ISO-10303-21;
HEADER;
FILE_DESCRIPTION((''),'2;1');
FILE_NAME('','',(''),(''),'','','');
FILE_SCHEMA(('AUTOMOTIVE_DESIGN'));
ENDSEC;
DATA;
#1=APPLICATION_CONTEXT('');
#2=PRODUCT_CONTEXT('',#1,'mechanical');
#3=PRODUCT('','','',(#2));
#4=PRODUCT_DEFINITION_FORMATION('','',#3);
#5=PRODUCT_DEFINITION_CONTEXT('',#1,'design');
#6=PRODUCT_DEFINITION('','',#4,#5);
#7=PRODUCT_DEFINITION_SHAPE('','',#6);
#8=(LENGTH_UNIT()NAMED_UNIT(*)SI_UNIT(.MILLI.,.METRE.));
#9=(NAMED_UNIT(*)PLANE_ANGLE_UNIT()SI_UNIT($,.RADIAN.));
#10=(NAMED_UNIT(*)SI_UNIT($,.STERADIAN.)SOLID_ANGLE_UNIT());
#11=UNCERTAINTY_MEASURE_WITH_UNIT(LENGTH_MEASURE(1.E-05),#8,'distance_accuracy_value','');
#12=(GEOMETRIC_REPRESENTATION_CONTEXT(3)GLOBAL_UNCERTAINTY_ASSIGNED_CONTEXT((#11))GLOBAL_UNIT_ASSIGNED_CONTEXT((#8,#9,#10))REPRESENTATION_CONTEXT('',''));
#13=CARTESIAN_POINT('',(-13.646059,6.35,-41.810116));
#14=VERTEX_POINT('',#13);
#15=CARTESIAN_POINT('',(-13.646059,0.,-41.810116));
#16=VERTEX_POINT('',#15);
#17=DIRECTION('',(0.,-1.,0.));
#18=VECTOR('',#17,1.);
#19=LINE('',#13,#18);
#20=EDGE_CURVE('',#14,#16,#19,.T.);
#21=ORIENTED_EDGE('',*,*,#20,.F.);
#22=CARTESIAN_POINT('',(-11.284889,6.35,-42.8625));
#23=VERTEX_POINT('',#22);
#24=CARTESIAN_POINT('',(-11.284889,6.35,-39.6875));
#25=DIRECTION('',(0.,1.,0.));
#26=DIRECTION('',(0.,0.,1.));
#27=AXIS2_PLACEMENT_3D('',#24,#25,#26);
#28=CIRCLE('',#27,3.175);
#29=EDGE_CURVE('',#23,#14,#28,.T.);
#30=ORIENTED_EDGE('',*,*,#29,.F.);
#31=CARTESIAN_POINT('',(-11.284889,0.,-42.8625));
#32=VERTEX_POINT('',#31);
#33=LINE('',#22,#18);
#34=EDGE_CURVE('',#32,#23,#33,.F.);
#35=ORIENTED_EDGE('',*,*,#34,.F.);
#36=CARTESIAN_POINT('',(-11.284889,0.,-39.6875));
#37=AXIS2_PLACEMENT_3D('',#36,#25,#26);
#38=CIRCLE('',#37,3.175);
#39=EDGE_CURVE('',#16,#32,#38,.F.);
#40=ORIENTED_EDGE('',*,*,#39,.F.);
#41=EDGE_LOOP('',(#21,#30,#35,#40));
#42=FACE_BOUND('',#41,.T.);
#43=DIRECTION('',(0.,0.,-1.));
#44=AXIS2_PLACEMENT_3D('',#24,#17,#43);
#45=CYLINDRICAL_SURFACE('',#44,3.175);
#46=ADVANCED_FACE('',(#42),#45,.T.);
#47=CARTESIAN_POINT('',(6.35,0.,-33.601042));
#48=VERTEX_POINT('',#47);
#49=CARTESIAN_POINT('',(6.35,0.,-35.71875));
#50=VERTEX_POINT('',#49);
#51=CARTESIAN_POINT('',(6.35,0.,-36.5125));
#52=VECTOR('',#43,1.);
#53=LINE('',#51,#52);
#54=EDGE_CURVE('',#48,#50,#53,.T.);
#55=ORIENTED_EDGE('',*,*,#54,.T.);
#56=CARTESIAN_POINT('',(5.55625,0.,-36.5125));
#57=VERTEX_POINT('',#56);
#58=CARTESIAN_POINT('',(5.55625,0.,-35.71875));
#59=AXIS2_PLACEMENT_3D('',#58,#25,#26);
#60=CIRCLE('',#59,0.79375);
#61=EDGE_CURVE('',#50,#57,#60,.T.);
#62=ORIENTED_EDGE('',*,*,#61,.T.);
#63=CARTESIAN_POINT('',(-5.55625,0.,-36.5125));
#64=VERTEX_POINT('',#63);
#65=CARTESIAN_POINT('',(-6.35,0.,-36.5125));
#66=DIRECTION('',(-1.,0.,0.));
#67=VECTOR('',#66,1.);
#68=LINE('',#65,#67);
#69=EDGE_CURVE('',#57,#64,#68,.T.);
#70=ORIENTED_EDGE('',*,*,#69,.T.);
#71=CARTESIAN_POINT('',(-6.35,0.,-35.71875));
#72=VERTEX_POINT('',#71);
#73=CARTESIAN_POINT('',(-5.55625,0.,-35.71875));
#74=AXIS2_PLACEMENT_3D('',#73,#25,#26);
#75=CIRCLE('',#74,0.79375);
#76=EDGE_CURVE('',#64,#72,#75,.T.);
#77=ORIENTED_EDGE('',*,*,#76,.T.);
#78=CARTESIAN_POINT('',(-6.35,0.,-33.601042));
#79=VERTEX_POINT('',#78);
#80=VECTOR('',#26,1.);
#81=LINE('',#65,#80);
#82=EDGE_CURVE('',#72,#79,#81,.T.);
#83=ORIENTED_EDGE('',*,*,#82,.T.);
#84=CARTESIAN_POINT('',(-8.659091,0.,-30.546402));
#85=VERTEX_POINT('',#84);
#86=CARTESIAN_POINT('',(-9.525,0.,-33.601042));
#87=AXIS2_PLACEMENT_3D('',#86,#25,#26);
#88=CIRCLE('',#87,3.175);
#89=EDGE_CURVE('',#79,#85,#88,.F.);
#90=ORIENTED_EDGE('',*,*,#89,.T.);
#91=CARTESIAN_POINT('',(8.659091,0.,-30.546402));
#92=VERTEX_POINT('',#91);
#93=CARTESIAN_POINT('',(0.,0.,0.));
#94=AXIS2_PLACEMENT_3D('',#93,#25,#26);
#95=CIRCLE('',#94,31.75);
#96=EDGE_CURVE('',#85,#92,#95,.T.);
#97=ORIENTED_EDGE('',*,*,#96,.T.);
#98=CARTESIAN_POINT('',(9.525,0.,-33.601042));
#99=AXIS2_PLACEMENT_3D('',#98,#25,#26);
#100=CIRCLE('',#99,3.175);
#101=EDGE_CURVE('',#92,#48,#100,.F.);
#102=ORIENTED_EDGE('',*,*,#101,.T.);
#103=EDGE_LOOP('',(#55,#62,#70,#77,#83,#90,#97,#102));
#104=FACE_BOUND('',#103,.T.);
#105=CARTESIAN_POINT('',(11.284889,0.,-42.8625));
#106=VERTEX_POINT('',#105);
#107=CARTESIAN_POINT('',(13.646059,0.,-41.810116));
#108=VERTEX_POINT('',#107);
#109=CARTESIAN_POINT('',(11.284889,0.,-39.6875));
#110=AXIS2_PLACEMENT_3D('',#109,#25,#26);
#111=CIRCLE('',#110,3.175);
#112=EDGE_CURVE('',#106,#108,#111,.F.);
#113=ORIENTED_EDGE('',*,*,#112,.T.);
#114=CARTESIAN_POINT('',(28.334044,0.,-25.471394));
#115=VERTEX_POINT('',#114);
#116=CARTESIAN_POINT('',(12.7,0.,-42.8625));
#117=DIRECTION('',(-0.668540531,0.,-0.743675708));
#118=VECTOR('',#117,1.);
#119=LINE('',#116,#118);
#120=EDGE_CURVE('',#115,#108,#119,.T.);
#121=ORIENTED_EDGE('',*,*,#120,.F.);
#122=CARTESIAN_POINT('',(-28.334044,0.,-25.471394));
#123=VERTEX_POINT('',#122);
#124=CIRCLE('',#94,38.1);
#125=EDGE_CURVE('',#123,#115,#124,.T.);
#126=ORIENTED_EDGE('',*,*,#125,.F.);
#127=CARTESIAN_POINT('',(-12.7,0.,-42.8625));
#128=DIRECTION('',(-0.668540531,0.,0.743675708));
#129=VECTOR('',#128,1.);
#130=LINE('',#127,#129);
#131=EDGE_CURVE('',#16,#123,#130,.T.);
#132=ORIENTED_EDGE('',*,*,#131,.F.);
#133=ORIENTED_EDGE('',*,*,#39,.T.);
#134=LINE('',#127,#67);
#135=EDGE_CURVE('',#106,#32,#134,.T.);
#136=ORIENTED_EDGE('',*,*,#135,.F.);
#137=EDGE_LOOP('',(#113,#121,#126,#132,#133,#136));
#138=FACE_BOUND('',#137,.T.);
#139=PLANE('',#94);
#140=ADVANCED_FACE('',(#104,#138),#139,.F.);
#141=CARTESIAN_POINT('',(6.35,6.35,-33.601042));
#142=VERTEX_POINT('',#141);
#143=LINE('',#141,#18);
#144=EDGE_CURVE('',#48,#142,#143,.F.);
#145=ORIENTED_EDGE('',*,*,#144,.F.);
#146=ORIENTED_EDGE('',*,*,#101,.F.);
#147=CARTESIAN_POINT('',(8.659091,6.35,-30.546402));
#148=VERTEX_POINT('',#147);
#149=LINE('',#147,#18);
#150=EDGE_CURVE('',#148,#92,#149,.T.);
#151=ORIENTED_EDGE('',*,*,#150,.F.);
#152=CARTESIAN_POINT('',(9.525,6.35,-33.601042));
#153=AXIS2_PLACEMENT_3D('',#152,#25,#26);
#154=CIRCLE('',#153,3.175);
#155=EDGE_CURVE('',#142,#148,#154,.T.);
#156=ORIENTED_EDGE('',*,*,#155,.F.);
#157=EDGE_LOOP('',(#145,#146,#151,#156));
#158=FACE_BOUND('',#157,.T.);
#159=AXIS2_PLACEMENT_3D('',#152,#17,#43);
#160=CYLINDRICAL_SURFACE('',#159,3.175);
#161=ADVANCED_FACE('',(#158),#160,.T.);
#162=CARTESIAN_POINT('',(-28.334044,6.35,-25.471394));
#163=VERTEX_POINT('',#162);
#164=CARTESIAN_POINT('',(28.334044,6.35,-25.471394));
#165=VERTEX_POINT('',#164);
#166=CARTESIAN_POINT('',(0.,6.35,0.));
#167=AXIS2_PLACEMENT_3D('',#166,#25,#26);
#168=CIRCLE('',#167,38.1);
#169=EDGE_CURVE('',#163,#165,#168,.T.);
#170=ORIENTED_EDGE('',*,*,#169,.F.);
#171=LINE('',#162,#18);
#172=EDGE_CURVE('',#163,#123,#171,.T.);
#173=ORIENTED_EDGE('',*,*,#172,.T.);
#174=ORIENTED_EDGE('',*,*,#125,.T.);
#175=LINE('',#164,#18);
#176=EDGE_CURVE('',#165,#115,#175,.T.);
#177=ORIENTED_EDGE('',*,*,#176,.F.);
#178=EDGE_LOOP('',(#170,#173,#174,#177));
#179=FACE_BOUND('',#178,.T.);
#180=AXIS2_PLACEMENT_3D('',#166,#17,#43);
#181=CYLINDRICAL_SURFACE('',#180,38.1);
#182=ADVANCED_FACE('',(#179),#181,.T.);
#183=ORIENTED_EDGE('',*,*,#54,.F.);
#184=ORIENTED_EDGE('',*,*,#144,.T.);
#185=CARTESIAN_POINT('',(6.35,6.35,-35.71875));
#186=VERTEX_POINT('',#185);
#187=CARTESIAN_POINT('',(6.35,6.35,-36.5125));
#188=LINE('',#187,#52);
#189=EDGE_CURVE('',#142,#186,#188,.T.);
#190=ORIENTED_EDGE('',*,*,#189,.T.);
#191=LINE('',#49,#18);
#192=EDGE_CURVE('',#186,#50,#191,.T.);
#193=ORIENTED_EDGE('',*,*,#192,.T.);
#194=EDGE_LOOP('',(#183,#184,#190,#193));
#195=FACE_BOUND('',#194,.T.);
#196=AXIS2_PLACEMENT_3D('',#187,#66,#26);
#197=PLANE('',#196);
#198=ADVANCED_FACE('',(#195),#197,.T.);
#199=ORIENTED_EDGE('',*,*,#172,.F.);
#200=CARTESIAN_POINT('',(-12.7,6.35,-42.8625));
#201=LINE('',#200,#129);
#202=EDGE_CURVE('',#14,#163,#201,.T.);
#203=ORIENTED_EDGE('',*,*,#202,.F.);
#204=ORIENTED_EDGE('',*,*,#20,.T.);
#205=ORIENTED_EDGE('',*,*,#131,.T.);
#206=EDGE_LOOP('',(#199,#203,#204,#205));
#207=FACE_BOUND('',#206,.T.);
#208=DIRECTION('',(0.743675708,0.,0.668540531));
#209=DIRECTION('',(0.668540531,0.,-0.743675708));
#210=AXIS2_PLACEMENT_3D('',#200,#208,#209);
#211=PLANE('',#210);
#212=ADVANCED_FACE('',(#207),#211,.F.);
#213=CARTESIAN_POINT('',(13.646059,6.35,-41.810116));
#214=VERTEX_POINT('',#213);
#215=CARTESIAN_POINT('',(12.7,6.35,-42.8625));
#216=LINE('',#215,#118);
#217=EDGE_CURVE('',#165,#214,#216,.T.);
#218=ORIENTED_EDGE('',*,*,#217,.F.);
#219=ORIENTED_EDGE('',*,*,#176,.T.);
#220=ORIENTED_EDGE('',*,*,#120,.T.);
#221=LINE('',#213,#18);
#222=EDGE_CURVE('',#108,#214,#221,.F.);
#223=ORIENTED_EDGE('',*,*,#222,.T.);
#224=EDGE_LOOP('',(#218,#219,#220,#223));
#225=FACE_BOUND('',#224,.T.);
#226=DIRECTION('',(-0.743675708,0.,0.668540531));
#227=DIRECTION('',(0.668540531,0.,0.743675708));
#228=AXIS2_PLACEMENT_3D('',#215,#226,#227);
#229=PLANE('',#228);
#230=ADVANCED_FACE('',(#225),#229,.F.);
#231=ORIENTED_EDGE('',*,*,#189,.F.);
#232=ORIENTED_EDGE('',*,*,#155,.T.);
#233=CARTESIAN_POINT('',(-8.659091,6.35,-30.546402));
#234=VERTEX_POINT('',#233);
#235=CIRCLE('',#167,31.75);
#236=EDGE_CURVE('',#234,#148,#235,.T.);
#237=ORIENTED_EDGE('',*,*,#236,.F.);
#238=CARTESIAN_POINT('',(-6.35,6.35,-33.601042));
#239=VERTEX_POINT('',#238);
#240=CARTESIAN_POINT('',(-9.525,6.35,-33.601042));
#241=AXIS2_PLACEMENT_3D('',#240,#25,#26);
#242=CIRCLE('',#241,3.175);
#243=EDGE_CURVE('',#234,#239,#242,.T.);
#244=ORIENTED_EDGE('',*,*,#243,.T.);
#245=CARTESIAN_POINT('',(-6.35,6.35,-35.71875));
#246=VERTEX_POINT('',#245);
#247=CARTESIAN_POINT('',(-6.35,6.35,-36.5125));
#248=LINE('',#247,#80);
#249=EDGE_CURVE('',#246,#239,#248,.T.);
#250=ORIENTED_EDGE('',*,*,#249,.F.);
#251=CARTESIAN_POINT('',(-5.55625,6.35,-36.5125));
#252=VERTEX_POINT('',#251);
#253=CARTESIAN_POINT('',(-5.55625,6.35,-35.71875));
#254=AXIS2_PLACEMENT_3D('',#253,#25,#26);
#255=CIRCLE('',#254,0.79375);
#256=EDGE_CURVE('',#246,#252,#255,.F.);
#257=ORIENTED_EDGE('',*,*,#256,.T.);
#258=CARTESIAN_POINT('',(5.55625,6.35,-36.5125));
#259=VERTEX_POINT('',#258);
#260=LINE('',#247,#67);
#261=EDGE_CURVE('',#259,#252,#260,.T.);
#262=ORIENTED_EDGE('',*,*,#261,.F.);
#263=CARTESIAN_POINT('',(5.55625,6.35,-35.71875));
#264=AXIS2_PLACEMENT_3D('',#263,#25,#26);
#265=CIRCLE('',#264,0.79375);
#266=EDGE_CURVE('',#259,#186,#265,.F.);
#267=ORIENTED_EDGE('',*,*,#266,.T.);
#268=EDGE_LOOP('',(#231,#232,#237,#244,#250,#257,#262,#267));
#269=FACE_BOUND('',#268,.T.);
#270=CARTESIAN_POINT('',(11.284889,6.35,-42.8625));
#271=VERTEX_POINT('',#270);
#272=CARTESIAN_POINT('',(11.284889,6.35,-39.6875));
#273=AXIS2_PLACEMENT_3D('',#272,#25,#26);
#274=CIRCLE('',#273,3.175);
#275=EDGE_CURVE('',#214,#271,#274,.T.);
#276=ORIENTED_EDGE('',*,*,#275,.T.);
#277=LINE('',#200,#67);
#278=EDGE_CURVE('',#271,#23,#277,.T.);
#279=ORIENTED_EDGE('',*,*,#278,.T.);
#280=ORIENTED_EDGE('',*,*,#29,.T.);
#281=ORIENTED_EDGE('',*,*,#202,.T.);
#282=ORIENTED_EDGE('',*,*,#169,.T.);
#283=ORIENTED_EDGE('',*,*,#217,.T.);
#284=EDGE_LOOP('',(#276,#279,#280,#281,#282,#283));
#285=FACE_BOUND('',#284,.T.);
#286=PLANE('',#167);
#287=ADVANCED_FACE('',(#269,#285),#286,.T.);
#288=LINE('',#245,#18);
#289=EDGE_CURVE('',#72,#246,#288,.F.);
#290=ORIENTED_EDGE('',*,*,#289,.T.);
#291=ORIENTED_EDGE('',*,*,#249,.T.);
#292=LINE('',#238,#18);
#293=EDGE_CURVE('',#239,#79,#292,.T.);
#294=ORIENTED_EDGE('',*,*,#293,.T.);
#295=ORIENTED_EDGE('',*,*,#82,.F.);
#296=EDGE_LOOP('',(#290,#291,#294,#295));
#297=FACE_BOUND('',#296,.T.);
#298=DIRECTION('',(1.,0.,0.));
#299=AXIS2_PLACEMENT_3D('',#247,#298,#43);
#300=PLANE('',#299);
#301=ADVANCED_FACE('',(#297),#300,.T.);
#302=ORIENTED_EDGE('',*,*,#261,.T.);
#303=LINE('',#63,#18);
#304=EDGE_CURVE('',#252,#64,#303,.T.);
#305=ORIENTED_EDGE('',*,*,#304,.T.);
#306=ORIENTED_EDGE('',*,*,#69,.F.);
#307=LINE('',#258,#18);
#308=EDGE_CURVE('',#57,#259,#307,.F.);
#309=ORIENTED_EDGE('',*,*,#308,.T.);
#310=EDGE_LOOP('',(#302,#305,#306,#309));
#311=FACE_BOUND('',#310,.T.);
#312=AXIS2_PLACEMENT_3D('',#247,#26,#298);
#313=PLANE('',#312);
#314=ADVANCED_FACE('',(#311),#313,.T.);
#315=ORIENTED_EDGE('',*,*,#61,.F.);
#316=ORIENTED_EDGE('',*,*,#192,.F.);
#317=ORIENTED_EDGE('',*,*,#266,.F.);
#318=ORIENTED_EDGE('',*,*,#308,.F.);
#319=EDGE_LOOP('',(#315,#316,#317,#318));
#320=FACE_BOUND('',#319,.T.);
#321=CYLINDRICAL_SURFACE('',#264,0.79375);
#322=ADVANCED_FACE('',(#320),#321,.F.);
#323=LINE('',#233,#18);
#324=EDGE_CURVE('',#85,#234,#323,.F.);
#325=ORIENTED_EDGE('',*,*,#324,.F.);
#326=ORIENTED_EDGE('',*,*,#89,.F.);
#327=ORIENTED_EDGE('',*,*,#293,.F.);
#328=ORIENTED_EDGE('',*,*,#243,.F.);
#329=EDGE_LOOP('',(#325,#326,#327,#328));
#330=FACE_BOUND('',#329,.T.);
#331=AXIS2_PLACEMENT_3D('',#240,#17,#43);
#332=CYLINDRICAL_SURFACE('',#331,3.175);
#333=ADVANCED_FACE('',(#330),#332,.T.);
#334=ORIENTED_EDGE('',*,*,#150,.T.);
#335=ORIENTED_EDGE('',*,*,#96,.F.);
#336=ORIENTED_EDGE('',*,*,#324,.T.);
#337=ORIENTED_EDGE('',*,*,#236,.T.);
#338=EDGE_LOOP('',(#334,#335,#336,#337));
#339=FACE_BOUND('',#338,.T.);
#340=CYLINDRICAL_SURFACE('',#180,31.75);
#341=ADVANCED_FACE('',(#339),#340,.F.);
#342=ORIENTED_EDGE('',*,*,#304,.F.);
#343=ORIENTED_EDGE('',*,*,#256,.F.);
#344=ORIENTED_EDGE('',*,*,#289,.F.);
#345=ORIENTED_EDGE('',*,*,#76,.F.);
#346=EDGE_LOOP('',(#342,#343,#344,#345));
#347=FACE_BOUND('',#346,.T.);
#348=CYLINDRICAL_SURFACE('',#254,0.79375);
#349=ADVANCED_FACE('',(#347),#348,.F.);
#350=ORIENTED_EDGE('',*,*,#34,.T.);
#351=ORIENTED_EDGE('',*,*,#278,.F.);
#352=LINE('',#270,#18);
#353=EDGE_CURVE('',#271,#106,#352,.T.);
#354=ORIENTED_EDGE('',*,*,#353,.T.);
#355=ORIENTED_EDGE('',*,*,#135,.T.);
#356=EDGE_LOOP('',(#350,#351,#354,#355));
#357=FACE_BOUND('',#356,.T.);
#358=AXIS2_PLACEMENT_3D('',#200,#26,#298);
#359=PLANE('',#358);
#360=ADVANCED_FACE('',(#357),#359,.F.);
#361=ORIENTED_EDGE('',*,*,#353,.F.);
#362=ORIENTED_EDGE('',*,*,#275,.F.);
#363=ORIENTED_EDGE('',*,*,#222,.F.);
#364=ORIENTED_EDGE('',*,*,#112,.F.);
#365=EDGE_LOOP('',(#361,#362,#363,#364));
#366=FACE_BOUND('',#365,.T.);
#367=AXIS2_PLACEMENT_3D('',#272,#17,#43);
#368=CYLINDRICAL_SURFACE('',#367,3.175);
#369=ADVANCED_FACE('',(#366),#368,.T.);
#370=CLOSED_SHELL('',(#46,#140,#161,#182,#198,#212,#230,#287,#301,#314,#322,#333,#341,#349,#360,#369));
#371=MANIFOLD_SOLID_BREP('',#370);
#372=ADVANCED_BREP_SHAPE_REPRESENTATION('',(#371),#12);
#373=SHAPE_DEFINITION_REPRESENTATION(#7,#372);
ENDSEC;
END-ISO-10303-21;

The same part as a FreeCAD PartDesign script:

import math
import FreeCAD as App
import Part
import Sketcher
Q = App.Units.Quantity


def edges_at(feature, points):
    """Names of the edges that pass closest to the given points."""
    edges = feature.Shape.Edges
    near = lambda p: min(range(len(edges)), key=lambda i: edges[i].distToShape(Part.Vertex(*p))[0])
    return sorted({f"Edge{near(p) + 1}" for p in points})

doc = App.newDocument("Part")
body = doc.addObject("PartDesign::Body", "Body")

# Sketch on XZ plane
sketch1 = body.newObject("Sketcher::SketchObject", "Sketch")
sketch1.AttachmentSupport = (doc.getObject("XZ_Plane"), [""])
sketch1.MapMode = "FlatFace"
sketch1.addGeometry([
    Part.LineSegment(App.Vector(-13, -43, 0), App.Vector(-28, -25, 0)),  # 0
    Part.ArcOfCircle(Part.Circle(App.Vector(0, 0, 0), App.Vector(0, 0, 1), 38), math.radians(-42), math.radians(222)),  # 1
    Part.LineSegment(App.Vector(28, -25, 0), App.Vector(13, -43, 0)),  # 2
    Part.LineSegment(App.Vector(13, -43, 0), App.Vector(-13, -43, 0)),  # 3
    Part.LineSegment(App.Vector(-6, -31, 0), App.Vector(-6, -37, 0)),  # 4
    Part.LineSegment(App.Vector(-6, -37, 0), App.Vector(6, -37, 0)),  # 5
    Part.LineSegment(App.Vector(6, -37, 0), App.Vector(6, -31, 0)),  # 6
    Part.ArcOfCircle(Part.Circle(App.Vector(0, 0, 0), App.Vector(0, 0, 1), 32), math.radians(-78), math.radians(258)),  # 7
], False)
sketch1.addConstraint([
    Sketcher.Constraint("Tangent", 0, 2, 1, 2),
    Sketcher.Constraint("Tangent", 1, 1, 2, 1),
    Sketcher.Constraint("Coincident", 2, 2, 3, 1),
    Sketcher.Constraint("Coincident", 3, 2, 0, 1),
    Sketcher.Constraint("Coincident", 4, 2, 5, 1),
    Sketcher.Constraint("Coincident", 5, 2, 6, 1),
    Sketcher.Constraint("Coincident", 6, 2, 7, 1),
    Sketcher.Constraint("Coincident", 7, 2, 4, 1),
    Sketcher.Constraint("Horizontal", 3),
    Sketcher.Constraint("Vertical", 4),
    Sketcher.Constraint("Horizontal", 5),
    Sketcher.Constraint("Vertical", 6),
    Sketcher.Constraint("Coincident", 1, 3, -1, 1),
    Sketcher.Constraint("Coincident", 7, 3, -1, 1),
    Sketcher.Constraint("Horizontal", 0, 2, 1, 1),
    Sketcher.Constraint("Horizontal", 6, 2, 7, 2),
    Sketcher.Constraint("Radius", 1, Q("1.5 in")),
    Sketcher.Constraint("DistanceX", 3, 2, 3, 1, Q("1 in")),
    Sketcher.Constraint("Radius", 7, Q("1.25 in")),
    Sketcher.Constraint("DistanceX", 5, 1, 5, 2, Q("0.5 in")),
    Sketcher.Constraint("DistanceY", 3, 2, 4, 2, Q("0.25 in")),
    Sketcher.Constraint("DistanceY", 2, 2, -1, 1, Q("1.6875 in")),
])
pad1 = body.newObject("PartDesign::Pad", "Pad")
pad1.Profile = sketch1
pad1.Length = Q("0.25 in")
pad1.Reversed = True
doc.recompute()

fillet = body.newObject("PartDesign::Fillet", "Fillet")
fillet.Base = (pad1, edges_at(pad1, [(-6.35, 3.175, -36.513), (6.35, 3.175, -36.513)]))
fillet.Radius = Q("0.03125 in")
doc.recompute()

fillet2 = body.newObject("PartDesign::Fillet", "Fillet001")
fillet2.Base = (fillet, edges_at(fillet, [
    (-6.35, 3.175, -31.109),
    (6.35, 3.175, -31.109),
    (-12.7, 3.175, -42.862),
    (12.7, 3.175, -42.862),
]))
fillet2.Radius = Q("0.125 in")

doc.recompute()
